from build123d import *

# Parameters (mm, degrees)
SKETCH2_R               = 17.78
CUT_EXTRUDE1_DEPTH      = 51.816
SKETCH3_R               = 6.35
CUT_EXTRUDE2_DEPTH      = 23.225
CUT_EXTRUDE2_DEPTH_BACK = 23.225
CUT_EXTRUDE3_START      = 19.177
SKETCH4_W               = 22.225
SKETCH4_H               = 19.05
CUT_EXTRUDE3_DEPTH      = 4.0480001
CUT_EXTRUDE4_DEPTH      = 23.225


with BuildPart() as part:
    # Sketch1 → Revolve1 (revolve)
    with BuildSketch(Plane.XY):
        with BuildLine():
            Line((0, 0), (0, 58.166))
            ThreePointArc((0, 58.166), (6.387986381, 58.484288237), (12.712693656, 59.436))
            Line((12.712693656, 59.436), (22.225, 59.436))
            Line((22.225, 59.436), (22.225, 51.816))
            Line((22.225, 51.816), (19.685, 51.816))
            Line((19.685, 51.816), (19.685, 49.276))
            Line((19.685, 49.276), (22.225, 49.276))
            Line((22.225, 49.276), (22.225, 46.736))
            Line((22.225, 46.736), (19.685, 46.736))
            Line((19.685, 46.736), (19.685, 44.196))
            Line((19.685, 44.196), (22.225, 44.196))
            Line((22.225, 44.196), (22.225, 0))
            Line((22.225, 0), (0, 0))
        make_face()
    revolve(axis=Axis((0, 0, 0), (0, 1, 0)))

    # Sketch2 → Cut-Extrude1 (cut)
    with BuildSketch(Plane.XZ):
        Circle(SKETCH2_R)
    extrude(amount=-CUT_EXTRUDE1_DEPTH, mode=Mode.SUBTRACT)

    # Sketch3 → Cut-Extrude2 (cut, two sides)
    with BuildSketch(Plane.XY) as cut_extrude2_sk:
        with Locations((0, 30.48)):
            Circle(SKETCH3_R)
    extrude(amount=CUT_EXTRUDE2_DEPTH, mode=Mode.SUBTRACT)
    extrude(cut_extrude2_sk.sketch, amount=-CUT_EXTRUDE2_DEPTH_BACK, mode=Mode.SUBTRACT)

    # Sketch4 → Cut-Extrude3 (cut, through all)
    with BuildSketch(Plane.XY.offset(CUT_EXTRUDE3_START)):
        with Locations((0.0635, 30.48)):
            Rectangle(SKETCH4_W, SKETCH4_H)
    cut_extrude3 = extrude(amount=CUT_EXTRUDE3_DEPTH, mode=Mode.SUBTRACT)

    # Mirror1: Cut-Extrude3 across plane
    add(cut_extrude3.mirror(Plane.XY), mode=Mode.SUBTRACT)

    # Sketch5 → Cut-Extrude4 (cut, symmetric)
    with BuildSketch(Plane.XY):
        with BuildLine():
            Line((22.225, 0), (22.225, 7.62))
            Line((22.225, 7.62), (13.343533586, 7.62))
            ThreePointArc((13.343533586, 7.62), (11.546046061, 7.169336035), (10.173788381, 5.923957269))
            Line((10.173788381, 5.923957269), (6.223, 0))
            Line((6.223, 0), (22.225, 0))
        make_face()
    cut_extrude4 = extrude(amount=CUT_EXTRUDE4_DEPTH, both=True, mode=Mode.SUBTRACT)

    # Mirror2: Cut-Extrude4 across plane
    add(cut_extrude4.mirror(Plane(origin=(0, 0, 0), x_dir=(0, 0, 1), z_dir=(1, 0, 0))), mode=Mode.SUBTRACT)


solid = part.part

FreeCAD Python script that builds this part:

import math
import FreeCAD as App
import Part
import Sketcher
Q = App.Units.Quantity

doc = App.newDocument("Part")
body = doc.addObject("PartDesign::Body", "Body")

sketch1 = body.newObject("Sketcher::SketchObject", "Sketch")
sketch1.AttachmentSupport = (doc.getObject("XY_Plane"), [""])
sketch1.MapMode = "FlatFace"
sketch1.addGeometry(Part.LineSegment(App.Vector(0, 58.2, 0), App.Vector(0, 0, 0)), False)
sketch1.addGeometry(Part.LineSegment(App.Vector(0, 0, 0), App.Vector(22.2, 0, 0)), False)
sketch1.addGeometry(Part.LineSegment(App.Vector(22.2, 0, 0), App.Vector(22.2, 44.2, 0)), False)
sketch1.addGeometry(Part.LineSegment(App.Vector(22.2, 44.2, 0), App.Vector(19.7, 44.2, 0)), False)
sketch1.addGeometry(Part.LineSegment(App.Vector(19.7, 44.2, 0), App.Vector(19.7, 46.7, 0)), False)
sketch1.addGeometry(Part.LineSegment(App.Vector(19.7, 46.7, 0), App.Vector(22.2, 46.7, 0)), False)
sketch1.addGeometry(Part.LineSegment(App.Vector(22.2, 46.7, 0), App.Vector(22.2, 49.3, 0)), False)
sketch1.addGeometry(Part.LineSegment(App.Vector(22.2, 49.3, 0), App.Vector(19.7, 49.3, 0)), False)
sketch1.addGeometry(Part.LineSegment(App.Vector(19.7, 49.3, 0), App.Vector(19.7, 51.8, 0)), False)
sketch1.addGeometry(Part.LineSegment(App.Vector(19.7, 51.8, 0), App.Vector(22.2, 51.8, 0)), False)
sketch1.addGeometry(Part.LineSegment(App.Vector(22.2, 51.8, 0), App.Vector(22.2, 59.4, 0)), False)
sketch1.addGeometry(Part.LineSegment(App.Vector(22.2, 59.4, 0), App.Vector(12.7, 59.4, 0)), False)
sketch1.addGeometry(Part.ArcOfCircle(Part.Circle(App.Vector(0, 122.4, 0), App.Vector(0, 0, 1), 64.3), math.radians(-90), math.radians(-78.59)), False)
sketch1.addConstraint(Sketcher.Constraint("Coincident", 0, 2, 1, 1))
sketch1.addConstraint(Sketcher.Constraint("Coincident", 1, 2, 2, 1))
sketch1.addConstraint(Sketcher.Constraint("Coincident", 2, 2, 3, 1))
sketch1.addConstraint(Sketcher.Constraint("Coincident", 3, 2, 4, 1))
sketch1.addConstraint(Sketcher.Constraint("Coincident", 4, 2, 5, 1))
sketch1.addConstraint(Sketcher.Constraint("Coincident", 5, 2, 6, 1))
sketch1.addConstraint(Sketcher.Constraint("Coincident", 6, 2, 7, 1))
sketch1.addConstraint(Sketcher.Constraint("Coincident", 7, 2, 8, 1))
sketch1.addConstraint(Sketcher.Constraint("Coincident", 8, 2, 9, 1))
sketch1.addConstraint(Sketcher.Constraint("Coincident", 9, 2, 10, 1))
sketch1.addConstraint(Sketcher.Constraint("Coincident", 10, 2, 11, 1))
sketch1.addConstraint(Sketcher.Constraint("Coincident", 11, 2, 12, 2))
sketch1.addConstraint(Sketcher.Constraint("Coincident", 12, 1, 0, 1))
sketch1.addConstraint(Sketcher.Constraint("Vertical", 0))
sketch1.addConstraint(Sketcher.Constraint("Horizontal", 1))
sketch1.addConstraint(Sketcher.Constraint("Vertical", 2))
sketch1.addConstraint(Sketcher.Constraint("Horizontal", 3))
sketch1.addConstraint(Sketcher.Constraint("Vertical", 4))
sketch1.addConstraint(Sketcher.Constraint("Horizontal", 5))
sketch1.addConstraint(Sketcher.Constraint("Vertical", 6))
sketch1.addConstraint(Sketcher.Constraint("Horizontal", 7))
sketch1.addConstraint(Sketcher.Constraint("Vertical", 8))
sketch1.addConstraint(Sketcher.Constraint("Horizontal", 9))
sketch1.addConstraint(Sketcher.Constraint("Vertical", 10))
sketch1.addConstraint(Sketcher.Constraint("Horizontal", 11))
sketch1.addConstraint(Sketcher.Constraint("Coincident", 0, 2, -1, 1))
sketch1.addConstraint(Sketcher.Constraint("PointOnObject", 12, 3, -2))
sketch1.addConstraint(Sketcher.Constraint("Vertical", 2, 2, 5, 2))
sketch1.addConstraint(Sketcher.Constraint("Vertical", 4, 2, 7, 2))
sketch1.addConstraint(Sketcher.Constraint("Vertical", 6, 2, 9, 2))
sketch1.addConstraint(Sketcher.Constraint("Equal", 9, 4))
sketch1.addConstraint(Sketcher.Constraint("Equal", 4, 6))
sketch1.addConstraint(Sketcher.Constraint("Equal", 6, 8))
sketch1.addConstraint(Sketcher.Constraint("Radius", 12, Q("2.53 in")))
sketch1.addConstraint(Sketcher.Constraint("DistanceX", 3, 2, 3, 1, Q("0.1 in")))
sketch1.addConstraint(Sketcher.Constraint("DistanceY", 10, 1, 10, 2, Q("0.3 in")))
sketch1.addConstraint(Sketcher.Constraint("DistanceY", 0, 2, 0, 1, Q("2.29 in")))
sketch1.addConstraint(Sketcher.Constraint("DistanceY", 2, 1, 2, 2, Q("1.74 in")))
sketch1.addConstraint(Sketcher.Constraint("DistanceX", 1, 1, 1, 2, Q("0.875 in")))
revolution = body.newObject("PartDesign::Revolution", "Revolution")
revolution.Profile = sketch1
revolution.ReferenceAxis = (sketch1, ["V_Axis"])
revolution.Angle = 360

sketch2 = body.newObject("Sketcher::SketchObject", "Sketch001")
sketch2.AttachmentSupport = (doc.getObject("XZ_Plane"), [""])
sketch2.MapMode = "FlatFace"
sketch2.addGeometry(Part.Circle(App.Vector(0, 0, 0), App.Vector(0, 0, 1), 18), False)
sketch2.addConstraint(Sketcher.Constraint("Coincident", 0, 3, -1, 1))
sketch2.addConstraint(Sketcher.Constraint("Diameter", 0, Q("1.4 in")))
pocket1 = body.newObject("PartDesign::Pocket", "Pocket")
pocket1.Profile = sketch2
pocket1.Length = Q("2.04 in")

sketch3 = body.newObject("Sketcher::SketchObject", "Sketch002")
sketch3.AttachmentSupport = (doc.getObject("XY_Plane"), [""])
sketch3.MapMode = "FlatFace"
sketch3.addGeometry(Part.Circle(App.Vector(0, 30, 0), App.Vector(0, 0, 1), 6), False)
sketch3.addConstraint(Sketcher.Constraint("PointOnObject", 0, 3, -2))
sketch3.addConstraint(Sketcher.Constraint("Diameter", 0, Q("0.5 in")))
sketch3.addConstraint(Sketcher.Constraint("DistanceY", -1, 1, 0, 3, Q("1.2 in")))
pocket2 = body.newObject("PartDesign::Pocket", "Pocket001")
pocket2.Profile = sketch3
pocket2.Type = "ThroughAll"
pocket2.Midplane = True

sketch4 = body.newObject("Sketcher::SketchObject", "Sketch003")
sketch4.AttachmentSupport = (doc.getObject("XY_Plane"), [""])
sketch4.MapMode = "FlatFace"
sketch4.AttachmentOffset = App.Placement(App.Vector(0, 0, 0.755 * 25.4), App.Rotation())
sketch4.addGeometry(Part.LineSegment(App.Vector(-11, 40, 0), App.Vector(-11, 21, 0)), False)
sketch4.addGeometry(Part.LineSegment(App.Vector(-11, 21, 0), App.Vector(11, 21, 0)), False)
sketch4.addGeometry(Part.LineSegment(App.Vector(11, 21, 0), App.Vector(11, 40, 0)), False)
sketch4.addGeometry(Part.LineSegment(App.Vector(11, 40, 0), App.Vector(-11, 40, 0)), False)
sketch4.addConstraint(Sketcher.Constraint("Coincident", 0, 2, 1, 1))
sketch4.addConstraint(Sketcher.Constraint("Coincident", 1, 2, 2, 1))
sketch4.addConstraint(Sketcher.Constraint("Coincident", 2, 2, 3, 1))
sketch4.addConstraint(Sketcher.Constraint("Coincident", 3, 2, 0, 1))
sketch4.addConstraint(Sketcher.Constraint("Vertical", 0))
sketch4.addConstraint(Sketcher.Constraint("Horizontal", 1))
sketch4.addConstraint(Sketcher.Constraint("Vertical", 2))
sketch4.addConstraint(Sketcher.Constraint("Horizontal", 3))
sketch4.addConstraint(Sketcher.Constraint("DistanceY", 0, 2, 0, 1, Q("0.75 in")))
sketch4.addConstraint(Sketcher.Constraint("DistanceX", 1, 1, 1, 2, Q("0.875 in")))
sketch4.addConstraint(Sketcher.Constraint("DistanceX", -1, 1, 1, 2, Q("0.44 in")))
sketch4.addConstraint(Sketcher.Constraint("DistanceY", -1, 1, 0, 2, Q("0.825 in")))
pocket3 = body.newObject("PartDesign::Pocket", "Pocket002")
pocket3.Profile = sketch4
pocket3.Type = "ThroughAll"
pocket3.Reversed = True
doc.recompute()

mirrored = body.newObject("PartDesign::Mirrored", "Mirrored")
mirrored.Originals = [pocket3]
mirrored.MirrorPlane = (doc.getObject("XY_Plane"), [""])
body.Tip = mirrored

sketch5 = body.newObject("Sketcher::SketchObject", "Sketch004")
sketch5.AttachmentSupport = (doc.getObject("XY_Plane"), [""])
sketch5.MapMode = "FlatFace"
sketch5.addGeometry(Part.LineSegment(App.Vector(22.2, 0, 0), App.Vector(22.2, 7.6, 0)), False)
sketch5.addGeometry(Part.LineSegment(App.Vector(22.2, 7.6, 0), App.Vector(13.3, 7.6, 0)), False)
sketch5.addGeometry(Part.ArcOfCircle(Part.Circle(App.Vector(13.3, 3.8, 0), App.Vector(0, 0, 1), 3.8), math.radians(90), math.radians(146)), False)
sketch5.addGeometry(Part.LineSegment(App.Vector(10.2, 5.9, 0), App.Vector(6.2, 0, 0)), False)
sketch5.addGeometry(Part.LineSegment(App.Vector(6.2, 0, 0), App.Vector(22.2, 0, 0)), False)
sketch5.addConstraint(Sketcher.Constraint("Coincident", 0, 2, 1, 1))
sketch5.addConstraint(Sketcher.Constraint("Tangent", 1, 2, 2, 1))
sketch5.addConstraint(Sketcher.Constraint("Tangent", 2, 2, 3, 1))
sketch5.addConstraint(Sketcher.Constraint("Coincident", 3, 2, 4, 1))
sketch5.addConstraint(Sketcher.Constraint("Coincident", 4, 2, 0, 1))
sketch5.addConstraint(Sketcher.Constraint("Vertical", 0))
sketch5.addConstraint(Sketcher.Constraint("Horizontal", 1))
sketch5.addConstraint(Sketcher.Constraint("Horizontal", 4))
sketch5.addConstraint(Sketcher.Constraint("PointOnObject", 3, 2, -1))
sketch5.addConstraint(Sketcher.Constraint("Radius", 2, Q("0.15 in")))
sketch5.addConstraint(Sketcher.Constraint("DistanceY", 0, 1, 0, 2, Q("0.3 in")))
sketch5.addConstraint(Sketcher.Constraint("DistanceX", 4, 1, 4, 2, Q("0.63 in")))
sketch5.addConstraint(Sketcher.Constraint("Angle", 3, Q("-123.7 deg")))
sketch5.addConstraint(Sketcher.Constraint("DistanceX", -1, 1, 0, 2, Q("0.875 in")))
pocket4 = body.newObject("PartDesign::Pocket", "Pocket003")
pocket4.Profile = sketch5
pocket4.Length = 46.45
pocket4.Midplane = True
doc.recompute()

mirrored2 = body.newObject("PartDesign::Mirrored", "Mirrored001")
mirrored2.Originals = [pocket4]
mirrored2.MirrorPlane = (doc.getObject("YZ_Plane"), [""])
body.Tip = mirrored2

doc.recompute()
